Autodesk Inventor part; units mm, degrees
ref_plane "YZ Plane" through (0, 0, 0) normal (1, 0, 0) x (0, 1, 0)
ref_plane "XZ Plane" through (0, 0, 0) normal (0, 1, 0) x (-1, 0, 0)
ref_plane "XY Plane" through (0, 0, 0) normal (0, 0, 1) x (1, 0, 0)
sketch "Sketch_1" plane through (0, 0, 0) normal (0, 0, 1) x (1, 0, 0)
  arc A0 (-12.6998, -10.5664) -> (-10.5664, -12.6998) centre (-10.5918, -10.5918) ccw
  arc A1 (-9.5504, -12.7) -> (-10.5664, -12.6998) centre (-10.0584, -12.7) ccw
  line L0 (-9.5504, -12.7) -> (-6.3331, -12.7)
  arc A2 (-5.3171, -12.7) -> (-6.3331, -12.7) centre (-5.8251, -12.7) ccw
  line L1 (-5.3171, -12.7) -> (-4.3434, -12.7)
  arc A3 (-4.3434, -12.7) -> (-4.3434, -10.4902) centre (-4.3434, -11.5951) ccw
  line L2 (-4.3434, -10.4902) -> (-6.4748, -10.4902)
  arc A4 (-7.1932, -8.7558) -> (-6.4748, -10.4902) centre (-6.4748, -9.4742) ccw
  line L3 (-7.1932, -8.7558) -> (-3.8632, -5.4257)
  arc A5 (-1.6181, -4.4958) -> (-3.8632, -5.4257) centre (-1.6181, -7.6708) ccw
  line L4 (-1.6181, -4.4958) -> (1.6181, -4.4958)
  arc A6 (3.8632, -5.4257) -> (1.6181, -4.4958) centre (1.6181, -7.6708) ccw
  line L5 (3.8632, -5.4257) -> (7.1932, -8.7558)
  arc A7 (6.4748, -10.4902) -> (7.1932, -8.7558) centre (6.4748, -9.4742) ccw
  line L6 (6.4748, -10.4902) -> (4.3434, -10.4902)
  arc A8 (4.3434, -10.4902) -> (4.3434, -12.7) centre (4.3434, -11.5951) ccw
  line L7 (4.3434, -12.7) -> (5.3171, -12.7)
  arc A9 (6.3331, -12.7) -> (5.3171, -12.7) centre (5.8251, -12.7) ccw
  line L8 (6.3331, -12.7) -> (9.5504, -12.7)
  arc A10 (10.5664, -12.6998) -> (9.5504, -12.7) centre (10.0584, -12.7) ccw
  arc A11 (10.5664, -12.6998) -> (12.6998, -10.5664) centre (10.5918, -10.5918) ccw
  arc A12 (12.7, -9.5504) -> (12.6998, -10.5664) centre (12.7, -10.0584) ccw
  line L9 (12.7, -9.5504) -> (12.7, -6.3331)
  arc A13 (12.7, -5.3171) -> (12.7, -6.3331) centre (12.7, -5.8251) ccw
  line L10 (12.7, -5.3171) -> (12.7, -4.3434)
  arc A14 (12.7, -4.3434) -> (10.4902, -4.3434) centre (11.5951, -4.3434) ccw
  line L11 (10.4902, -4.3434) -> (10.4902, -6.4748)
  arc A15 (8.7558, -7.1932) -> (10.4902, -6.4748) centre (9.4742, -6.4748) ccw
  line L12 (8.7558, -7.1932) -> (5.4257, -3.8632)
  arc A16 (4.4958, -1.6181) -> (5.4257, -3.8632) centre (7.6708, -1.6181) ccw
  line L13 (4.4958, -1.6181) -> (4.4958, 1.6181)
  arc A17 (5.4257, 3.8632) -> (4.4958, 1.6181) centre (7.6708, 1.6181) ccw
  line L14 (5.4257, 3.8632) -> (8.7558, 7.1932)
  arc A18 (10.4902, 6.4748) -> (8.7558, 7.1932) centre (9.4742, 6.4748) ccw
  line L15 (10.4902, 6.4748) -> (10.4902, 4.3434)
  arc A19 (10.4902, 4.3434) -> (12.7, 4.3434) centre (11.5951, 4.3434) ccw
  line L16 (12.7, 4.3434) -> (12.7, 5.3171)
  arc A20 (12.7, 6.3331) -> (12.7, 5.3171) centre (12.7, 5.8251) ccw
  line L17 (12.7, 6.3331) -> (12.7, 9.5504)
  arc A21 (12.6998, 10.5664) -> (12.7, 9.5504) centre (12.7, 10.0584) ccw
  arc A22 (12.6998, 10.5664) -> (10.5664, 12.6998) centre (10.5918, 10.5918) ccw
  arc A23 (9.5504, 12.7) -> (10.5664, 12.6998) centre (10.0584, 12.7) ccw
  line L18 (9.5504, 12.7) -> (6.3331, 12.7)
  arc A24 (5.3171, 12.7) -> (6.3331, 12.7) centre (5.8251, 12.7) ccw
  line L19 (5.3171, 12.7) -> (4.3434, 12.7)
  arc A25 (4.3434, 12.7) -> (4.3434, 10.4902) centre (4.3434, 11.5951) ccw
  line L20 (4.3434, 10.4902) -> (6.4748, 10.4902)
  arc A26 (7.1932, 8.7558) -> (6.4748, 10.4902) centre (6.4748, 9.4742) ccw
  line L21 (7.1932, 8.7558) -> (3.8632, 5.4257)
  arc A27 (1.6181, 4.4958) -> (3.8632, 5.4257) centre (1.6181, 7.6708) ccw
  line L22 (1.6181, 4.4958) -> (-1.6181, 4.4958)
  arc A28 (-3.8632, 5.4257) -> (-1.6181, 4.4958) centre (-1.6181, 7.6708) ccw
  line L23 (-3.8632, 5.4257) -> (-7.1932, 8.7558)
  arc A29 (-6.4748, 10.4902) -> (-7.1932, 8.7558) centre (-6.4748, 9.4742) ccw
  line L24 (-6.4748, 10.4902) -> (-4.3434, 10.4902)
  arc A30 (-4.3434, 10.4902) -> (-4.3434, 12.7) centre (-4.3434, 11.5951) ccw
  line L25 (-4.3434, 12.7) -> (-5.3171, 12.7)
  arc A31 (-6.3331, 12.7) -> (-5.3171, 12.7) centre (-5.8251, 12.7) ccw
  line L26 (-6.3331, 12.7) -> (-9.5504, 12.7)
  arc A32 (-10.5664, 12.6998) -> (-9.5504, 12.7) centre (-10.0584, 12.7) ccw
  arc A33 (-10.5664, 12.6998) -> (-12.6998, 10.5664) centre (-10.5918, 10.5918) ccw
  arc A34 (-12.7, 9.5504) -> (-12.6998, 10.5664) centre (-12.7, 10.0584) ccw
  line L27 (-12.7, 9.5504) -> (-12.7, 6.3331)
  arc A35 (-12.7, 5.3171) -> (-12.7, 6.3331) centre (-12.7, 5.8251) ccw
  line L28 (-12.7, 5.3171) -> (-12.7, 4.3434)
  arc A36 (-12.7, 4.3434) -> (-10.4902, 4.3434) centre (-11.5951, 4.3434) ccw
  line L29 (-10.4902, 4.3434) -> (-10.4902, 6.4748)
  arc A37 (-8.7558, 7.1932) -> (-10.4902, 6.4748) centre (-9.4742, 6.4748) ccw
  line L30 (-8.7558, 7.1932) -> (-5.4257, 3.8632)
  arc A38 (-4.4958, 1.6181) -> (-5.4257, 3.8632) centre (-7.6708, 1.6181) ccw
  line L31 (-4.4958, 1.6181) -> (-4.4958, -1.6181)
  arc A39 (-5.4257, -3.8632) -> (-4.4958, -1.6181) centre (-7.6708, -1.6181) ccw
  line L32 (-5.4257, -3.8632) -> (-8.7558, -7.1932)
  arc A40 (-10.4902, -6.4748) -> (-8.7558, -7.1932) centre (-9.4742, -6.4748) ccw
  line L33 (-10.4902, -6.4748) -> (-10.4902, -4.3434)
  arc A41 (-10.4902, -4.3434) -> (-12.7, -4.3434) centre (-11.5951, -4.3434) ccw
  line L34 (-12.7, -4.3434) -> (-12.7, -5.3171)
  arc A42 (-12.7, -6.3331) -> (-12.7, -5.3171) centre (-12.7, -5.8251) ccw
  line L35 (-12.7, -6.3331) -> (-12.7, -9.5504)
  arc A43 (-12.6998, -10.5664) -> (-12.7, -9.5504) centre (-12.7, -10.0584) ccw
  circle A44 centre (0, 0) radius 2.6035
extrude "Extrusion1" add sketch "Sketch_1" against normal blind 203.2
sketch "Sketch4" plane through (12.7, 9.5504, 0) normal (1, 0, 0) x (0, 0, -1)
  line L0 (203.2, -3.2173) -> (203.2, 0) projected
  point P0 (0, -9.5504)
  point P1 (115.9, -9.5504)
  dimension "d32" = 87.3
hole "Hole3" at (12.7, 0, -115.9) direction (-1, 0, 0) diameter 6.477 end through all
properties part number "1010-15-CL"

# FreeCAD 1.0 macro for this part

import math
import FreeCAD as App
import Part
import Sketcher

V = App.Vector
Q = App.Units.Quantity

doc = App.newDocument("Part")
body = doc.addObject("PartDesign::Body", "Body")

# Sketch on XY plane
sketch1 = doc.addObject("Sketcher::SketchObject", "Sketch")
body.addObject(sketch1)
sketch1.AttachmentSupport = (doc.XY_Plane, [""])
sketch1.MapMode = "FlatFace"
sketch1.addGeometry(Part.ArcOfCircle(Part.Circle(V(-12.7, -10.0584, 0), V(0, 0, 1), 0.508), math.radians(-89.977443), math.radians(90)), False)
sketch1.addGeometry(Part.ArcOfCircle(Part.Circle(V(-10.5918, -10.5918, 0), V(0, 0, 1), 2.108153), math.radians(179.309657), math.radians(270.690343)), False)
sketch1.addGeometry(Part.ArcOfCircle(Part.Circle(V(-10.0584, -12.7, 0), V(0, 0, 1), 0.508), math.radians(0), math.radians(179.977443)), False)
sketch1.addGeometry(Part.LineSegment(V(-9.5504, -12.7, 0), V(-6.3331, -12.7, 0)), False)
sketch1.addGeometry(Part.ArcOfCircle(Part.Circle(V(-5.8251, -12.7, 0), V(0, 0, 1), 0.508), math.radians(0), math.radians(180)), False)
sketch1.addGeometry(Part.LineSegment(V(-5.3171, -12.7, 0), V(-4.3434, -12.7, 0)), False)
sketch1.addGeometry(Part.ArcOfCircle(Part.Circle(V(-4.3434, -11.5951, 0), V(0, 0, 1), 1.1049), math.radians(-90), math.radians(90)), False)
sketch1.addGeometry(Part.LineSegment(V(-4.3434, -10.4902, 0), V(-6.4748, -10.4902, 0)), False)
sketch1.addGeometry(Part.ArcOfCircle(Part.Circle(V(-6.4748, -9.4742, 0), V(0, 0, 1), 1.015971), math.radians(135), math.radians(270)), False)
sketch1.addGeometry(Part.LineSegment(V(-7.1932, -8.7558, 0), V(-3.8632, -5.4257, 0)), False)
sketch1.addGeometry(Part.ArcOfCircle(Part.Circle(V(-1.6181, -7.6708, 0), V(0, 0, 1), 3.175), math.radians(90), math.radians(135)), False)
sketch1.addGeometry(Part.LineSegment(V(-1.6181, -4.4958, 0), V(1.6181, -4.4958, 0)), False)
sketch1.addGeometry(Part.ArcOfCircle(Part.Circle(V(1.6181, -7.6708, 0), V(0, 0, 1), 3.175051), math.radians(45), math.radians(90)), False)
sketch1.addGeometry(Part.LineSegment(V(3.8632, -5.4257, 0), V(7.1932, -8.7558, 0)), False)
sketch1.addGeometry(Part.ArcOfCircle(Part.Circle(V(6.4748, -9.4742, 0), V(0, 0, 1), 1.016), math.radians(-90), math.radians(45)), False)
sketch1.addGeometry(Part.LineSegment(V(6.4748, -10.4902, 0), V(4.3434, -10.4902, 0)), False)
sketch1.addGeometry(Part.ArcOfCircle(Part.Circle(V(4.3434, -11.5951, 0), V(0, 0, 1), 1.1049), math.radians(90), math.radians(270)), False)
sketch1.addGeometry(Part.LineSegment(V(4.3434, -12.7, 0), V(5.3171, -12.7, 0)), False)
sketch1.addGeometry(Part.ArcOfCircle(Part.Circle(V(5.8251, -12.7, 0), V(0, 0, 1), 0.508), math.radians(0), math.radians(180)), False)
sketch1.addGeometry(Part.LineSegment(V(6.3331, -12.7, 0), V(9.5504, -12.7, 0)), False)
sketch1.addGeometry(Part.ArcOfCircle(Part.Circle(V(10.0584, -12.7, 0), V(0, 0, 1), 0.508), math.radians(0.022557), math.radians(180)), False)
sketch1.addGeometry(Part.ArcOfCircle(Part.Circle(V(10.5918, -10.5918, 0), V(0, 0, 1), 2.108153), math.radians(-90.690343), math.radians(0.690343)), False)
sketch1.addGeometry(Part.ArcOfCircle(Part.Circle(V(12.7, -10.0584, 0), V(0, 0, 1), 0.508), math.radians(90), math.radians(269.977443)), False)
sketch1.addGeometry(Part.LineSegment(V(12.7, -9.5504, 0), V(12.7, -6.3331, 0)), False)
sketch1.addGeometry(Part.ArcOfCircle(Part.Circle(V(12.7, -5.8251, 0), V(0, 0, 1), 0.508), math.radians(90), math.radians(270)), False)
sketch1.addGeometry(Part.LineSegment(V(12.7, -5.3171, 0), V(12.7, -4.3434, 0)), False)
sketch1.addGeometry(Part.ArcOfCircle(Part.Circle(V(11.5951, -4.3434, 0), V(0, 0, 1), 1.1049), math.radians(0), math.radians(180)), False)
sketch1.addGeometry(Part.LineSegment(V(10.4902, -4.3434, 0), V(10.4902, -6.4748, 0)), False)
sketch1.addGeometry(Part.ArcOfCircle(Part.Circle(V(9.4742, -6.4748, 0), V(0, 0, 1), 1.015971), math.radians(-135), math.radians(0)), False)
sketch1.addGeometry(Part.LineSegment(V(8.7558, -7.1932, 0), V(5.4257, -3.8632, 0)), False)
sketch1.addGeometry(Part.ArcOfCircle(Part.Circle(V(7.6708, -1.6181, 0), V(0, 0, 1), 3.175), math.radians(180), math.radians(225)), False)
sketch1.addGeometry(Part.LineSegment(V(4.4958, -1.6181, 0), V(4.4958, 1.6181, 0)), False)
sketch1.addGeometry(Part.ArcOfCircle(Part.Circle(V(7.6708, 1.6181, 0), V(0, 0, 1), 3.175051), math.radians(135), math.radians(180)), False)
sketch1.addGeometry(Part.LineSegment(V(5.4257, 3.8632, 0), V(8.7558, 7.1932, 0)), False)
sketch1.addGeometry(Part.ArcOfCircle(Part.Circle(V(9.4742, 6.4748, 0), V(0, 0, 1), 1.016), math.radians(0), math.radians(135)), False)
sketch1.addGeometry(Part.LineSegment(V(10.4902, 6.4748, 0), V(10.4902, 4.3434, 0)), False)
sketch1.addGeometry(Part.ArcOfCircle(Part.Circle(V(11.5951, 4.3434, 0), V(0, 0, 1), 1.1049), math.radians(180), math.radians(360)), False)
sketch1.addGeometry(Part.LineSegment(V(12.7, 4.3434, 0), V(12.7, 5.3171, 0)), False)
sketch1.addGeometry(Part.ArcOfCircle(Part.Circle(V(12.7, 5.8251, 0), V(0, 0, 1), 0.508), math.radians(90), math.radians(270)), False)
sketch1.addGeometry(Part.LineSegment(V(12.7, 6.3331, 0), V(12.7, 9.5504, 0)), False)
sketch1.addGeometry(Part.ArcOfCircle(Part.Circle(V(12.7, 10.0584, 0), V(0, 0, 1), 0.508), math.radians(90.022557), math.radians(270)), False)
sketch1.addGeometry(Part.ArcOfCircle(Part.Circle(V(10.5918, 10.5918, 0), V(0, 0, 1), 2.108153), math.radians(-0.690343), math.radians(90.690343)), False)
sketch1.addGeometry(Part.ArcOfCircle(Part.Circle(V(10.0584, 12.7, 0), V(0, 0, 1), 0.508), math.radians(180), math.radians(359.977443)), False)
sketch1.addGeometry(Part.LineSegment(V(9.5504, 12.7, 0), V(6.3331, 12.7, 0)), False)
sketch1.addGeometry(Part.ArcOfCircle(Part.Circle(V(5.8251, 12.7, 0), V(0, 0, 1), 0.508), math.radians(180), math.radians(360)), False)
sketch1.addGeometry(Part.LineSegment(V(5.3171, 12.7, 0), V(4.3434, 12.7, 0)), False)
sketch1.addGeometry(Part.ArcOfCircle(Part.Circle(V(4.3434, 11.5951, 0), V(0, 0, 1), 1.1049), math.radians(90), math.radians(270)), False)
sketch1.addGeometry(Part.LineSegment(V(4.3434, 10.4902, 0), V(6.4748, 10.4902, 0)), False)
sketch1.addGeometry(Part.ArcOfCircle(Part.Circle(V(6.4748, 9.4742, 0), V(0, 0, 1), 1.015971), math.radians(-45), math.radians(90)), False)
sketch1.addGeometry(Part.LineSegment(V(7.1932, 8.7558, 0), V(3.8632, 5.4257, 0)), False)
sketch1.addGeometry(Part.ArcOfCircle(Part.Circle(V(1.6181, 7.6708, 0), V(0, 0, 1), 3.175), math.radians(-90), math.radians(-45)), False)
sketch1.addGeometry(Part.LineSegment(V(1.6181, 4.4958, 0), V(-1.6181, 4.4958, 0)), False)
sketch1.addGeometry(Part.ArcOfCircle(Part.Circle(V(-1.6181, 7.6708, 0), V(0, 0, 1), 3.175051), math.radians(-135), math.radians(-90)), False)
sketch1.addGeometry(Part.LineSegment(V(-3.8632, 5.4257, 0), V(-7.1932, 8.7558, 0)), False)
sketch1.addGeometry(Part.ArcOfCircle(Part.Circle(V(-6.4748, 9.4742, 0), V(0, 0, 1), 1.016), math.radians(90), math.radians(225)), False)
sketch1.addGeometry(Part.LineSegment(V(-6.4748, 10.4902, 0), V(-4.3434, 10.4902, 0)), False)
sketch1.addGeometry(Part.ArcOfCircle(Part.Circle(V(-4.3434, 11.5951, 0), V(0, 0, 1), 1.1049), math.radians(-90), math.radians(90)), False)
sketch1.addGeometry(Part.LineSegment(V(-4.3434, 12.7, 0), V(-5.3171, 12.7, 0)), False)
sketch1.addGeometry(Part.ArcOfCircle(Part.Circle(V(-5.8251, 12.7, 0), V(0, 0, 1), 0.508), math.radians(180), math.radians(360)), False)
sketch1.addGeometry(Part.LineSegment(V(-6.3331, 12.7, 0), V(-9.5504, 12.7, 0)), False)
sketch1.addGeometry(Part.ArcOfCircle(Part.Circle(V(-10.0584, 12.7, 0), V(0, 0, 1), 0.508), math.radians(-179.977443), math.radians(0)), False)
sketch1.addGeometry(Part.ArcOfCircle(Part.Circle(V(-10.5918, 10.5918, 0), V(0, 0, 1), 2.108153), math.radians(89.309657), math.radians(180.690343)), False)
sketch1.addGeometry(Part.ArcOfCircle(Part.Circle(V(-12.7, 10.0584, 0), V(0, 0, 1), 0.508), math.radians(-90), math.radians(89.977443)), False)
sketch1.addGeometry(Part.LineSegment(V(-12.7, 9.5504, 0), V(-12.7, 6.3331, 0)), False)
sketch1.addGeometry(Part.ArcOfCircle(Part.Circle(V(-12.7, 5.8251, 0), V(0, 0, 1), 0.508), math.radians(-90), math.radians(90)), False)
sketch1.addGeometry(Part.LineSegment(V(-12.7, 5.3171, 0), V(-12.7, 4.3434, 0)), False)
sketch1.addGeometry(Part.ArcOfCircle(Part.Circle(V(-11.5951, 4.3434, 0), V(0, 0, 1), 1.1049), math.radians(180), math.radians(360)), False)
sketch1.addGeometry(Part.LineSegment(V(-10.4902, 4.3434, 0), V(-10.4902, 6.4748, 0)), False)
sketch1.addGeometry(Part.ArcOfCircle(Part.Circle(V(-9.4742, 6.4748, 0), V(0, 0, 1), 1.015971), math.radians(45), math.radians(180)), False)
sketch1.addGeometry(Part.LineSegment(V(-8.7558, 7.1932, 0), V(-5.4257, 3.8632, 0)), False)
sketch1.addGeometry(Part.ArcOfCircle(Part.Circle(V(-7.6708, 1.6181, 0), V(0, 0, 1), 3.175), math.radians(0), math.radians(45)), False)
sketch1.addGeometry(Part.LineSegment(V(-4.4958, 1.6181, 0), V(-4.4958, -1.6181, 0)), False)
sketch1.addGeometry(Part.ArcOfCircle(Part.Circle(V(-7.6708, -1.6181, 0), V(0, 0, 1), 3.175051), math.radians(-45), math.radians(0)), False)
sketch1.addGeometry(Part.LineSegment(V(-5.4257, -3.8632, 0), V(-8.7558, -7.1932, 0)), False)
sketch1.addGeometry(Part.ArcOfCircle(Part.Circle(V(-9.4742, -6.4748, 0), V(0, 0, 1), 1.016), math.radians(180), math.radians(315)), False)
sketch1.addGeometry(Part.LineSegment(V(-10.4902, -6.4748, 0), V(-10.4902, -4.3434, 0)), False)
sketch1.addGeometry(Part.ArcOfCircle(Part.Circle(V(-11.5951, -4.3434, 0), V(0, 0, 1), 1.1049), math.radians(0), math.radians(180)), False)
sketch1.addGeometry(Part.LineSegment(V(-12.7, -4.3434, 0), V(-12.7, -5.3171, 0)), False)
sketch1.addGeometry(Part.ArcOfCircle(Part.Circle(V(-12.7, -5.8251, 0), V(0, 0, 1), 0.508), math.radians(-90), math.radians(90)), False)
sketch1.addGeometry(Part.LineSegment(V(-12.7, -6.3331, 0), V(-12.7, -9.5504, 0)), False)
sketch1.addGeometry(Part.Circle(V(0, 0, 0), V(0, 0, 1), 2.6035), False)
sketch1.addConstraint(Sketcher.Constraint("Coincident", 0, 1, 1, 1))
sketch1.addConstraint(Sketcher.Constraint("Coincident", 1, 2, 2, 2))
sketch1.addConstraint(Sketcher.Constraint("Coincident", 2, 1, 3, 1))
sketch1.addConstraint(Sketcher.Constraint("Coincident", 3, 2, 4, 2))
sketch1.addConstraint(Sketcher.Constraint("Coincident", 4, 1, 5, 1))
sketch1.addConstraint(Sketcher.Constraint("Tangent", 5, 2, 6, 1))
sketch1.addConstraint(Sketcher.Constraint("Tangent", 6, 2, 7, 1))
sketch1.addConstraint(Sketcher.Constraint("Tangent", 7, 2, 8, 2))
sketch1.addConstraint(Sketcher.Constraint("Tangent", 8, 1, 9, 1))
sketch1.addConstraint(Sketcher.Constraint("Tangent", 9, 2, 10, 2))
sketch1.addConstraint(Sketcher.Constraint("Tangent", 10, 1, 11, 1))
sketch1.addConstraint(Sketcher.Constraint("Tangent", 11, 2, 12, 2))
sketch1.addConstraint(Sketcher.Constraint("Tangent", 12, 1, 13, 1))
sketch1.addConstraint(Sketcher.Constraint("Tangent", 13, 2, 14, 2))
sketch1.addConstraint(Sketcher.Constraint("Tangent", 14, 1, 15, 1))
sketch1.addConstraint(Sketcher.Constraint("Tangent", 15, 2, 16, 1))
sketch1.addConstraint(Sketcher.Constraint("Tangent", 16, 2, 17, 1))
sketch1.addConstraint(Sketcher.Constraint("Coincident", 17, 2, 18, 2))
sketch1.addConstraint(Sketcher.Constraint("Coincident", 18, 1, 19, 1))
sketch1.addConstraint(Sketcher.Constraint("Coincident", 19, 2, 20, 2))
sketch1.addConstraint(Sketcher.Constraint("Coincident", 20, 1, 21, 1))
sketch1.addConstraint(Sketcher.Constraint("Coincident", 21, 2, 22, 2))
sketch1.addConstraint(Sketcher.Constraint("Coincident", 22, 1, 23, 1))
sketch1.addConstraint(Sketcher.Constraint("Coincident", 23, 2, 24, 2))
sketch1.addConstraint(Sketcher.Constraint("Coincident", 24, 1, 25, 1))
sketch1.addConstraint(Sketcher.Constraint("Tangent", 25, 2, 26, 1))
sketch1.addConstraint(Sketcher.Constraint("Tangent", 26, 2, 27, 1))
sketch1.addConstraint(Sketcher.Constraint("Tangent", 27, 2, 28, 2))
sketch1.addConstraint(Sketcher.Constraint("Tangent", 28, 1, 29, 1))
sketch1.addConstraint(Sketcher.Constraint("Tangent", 29, 2, 30, 2))
sketch1.addConstraint(Sketcher.Constraint("Tangent", 30, 1, 31, 1))
sketch1.addConstraint(Sketcher.Constraint("Tangent", 31, 2, 32, 2))
sketch1.addConstraint(Sketcher.Constraint("Tangent", 32, 1, 33, 1))
sketch1.addConstraint(Sketcher.Constraint("Tangent", 33, 2, 34, 2))
sketch1.addConstraint(Sketcher.Constraint("Tangent", 34, 1, 35, 1))
sketch1.addConstraint(Sketcher.Constraint("Tangent", 35, 2, 36, 1))
sketch1.addConstraint(Sketcher.Constraint("Tangent", 36, 2, 37, 1))
sketch1.addConstraint(Sketcher.Constraint("Coincident", 37, 2, 38, 2))
sketch1.addConstraint(Sketcher.Constraint("Coincident", 38, 1, 39, 1))
sketch1.addConstraint(Sketcher.Constraint("Coincident", 39, 2, 40, 2))
sketch1.addConstraint(Sketcher.Constraint("Coincident", 40, 1, 41, 1))
sketch1.addConstraint(Sketcher.Constraint("Coincident", 41, 2, 42, 2))
sketch1.addConstraint(Sketcher.Constraint("Coincident", 42, 1, 43, 1))
sketch1.addConstraint(Sketcher.Constraint("Coincident", 43, 2, 44, 2))
sketch1.addConstraint(Sketcher.Constraint("Coincident", 44, 1, 45, 1))
sketch1.addConstraint(Sketcher.Constraint("Tangent", 45, 2, 46, 1))
sketch1.addConstraint(Sketcher.Constraint("Tangent", 46, 2, 47, 1))
sketch1.addConstraint(Sketcher.Constraint("Tangent", 47, 2, 48, 2))
sketch1.addConstraint(Sketcher.Constraint("Tangent", 48, 1, 49, 1))
sketch1.addConstraint(Sketcher.Constraint("Tangent", 49, 2, 50, 2))
sketch1.addConstraint(Sketcher.Constraint("Tangent", 50, 1, 51, 1))
sketch1.addConstraint(Sketcher.Constraint("Tangent", 51, 2, 52, 2))
sketch1.addConstraint(Sketcher.Constraint("Tangent", 52, 1, 53, 1))
sketch1.addConstraint(Sketcher.Constraint("Tangent", 53, 2, 54, 2))
sketch1.addConstraint(Sketcher.Constraint("Tangent", 54, 1, 55, 1))
sketch1.addConstraint(Sketcher.Constraint("Tangent", 55, 2, 56, 1))
sketch1.addConstraint(Sketcher.Constraint("Tangent", 56, 2, 57, 1))
sketch1.addConstraint(Sketcher.Constraint("Coincident", 57, 2, 58, 2))
sketch1.addConstraint(Sketcher.Constraint("Coincident", 58, 1, 59, 1))
sketch1.addConstraint(Sketcher.Constraint("Coincident", 59, 2, 60, 2))
sketch1.addConstraint(Sketcher.Constraint("Coincident", 60, 1, 61, 1))
sketch1.addConstraint(Sketcher.Constraint("Coincident", 61, 2, 62, 2))
sketch1.addConstraint(Sketcher.Constraint("Coincident", 62, 1, 63, 1))
sketch1.addConstraint(Sketcher.Constraint("Coincident", 63, 2, 64, 2))
sketch1.addConstraint(Sketcher.Constraint("Coincident", 64, 1, 65, 1))
sketch1.addConstraint(Sketcher.Constraint("Tangent", 65, 2, 66, 1))
sketch1.addConstraint(Sketcher.Constraint("Tangent", 66, 2, 67, 1))
sketch1.addConstraint(Sketcher.Constraint("Tangent", 67, 2, 68, 2))
sketch1.addConstraint(Sketcher.Constraint("Tangent", 68, 1, 69, 1))
sketch1.addConstraint(Sketcher.Constraint("Tangent", 69, 2, 70, 2))
sketch1.addConstraint(Sketcher.Constraint("Tangent", 70, 1, 71, 1))
sketch1.addConstraint(Sketcher.Constraint("Tangent", 71, 2, 72, 2))
sketch1.addConstraint(Sketcher.Constraint("Tangent", 72, 1, 73, 1))
sketch1.addConstraint(Sketcher.Constraint("Tangent", 73, 2, 74, 2))
sketch1.addConstraint(Sketcher.Constraint("Tangent", 74, 1, 75, 1))
sketch1.addConstraint(Sketcher.Constraint("Tangent", 75, 2, 76, 1))
sketch1.addConstraint(Sketcher.Constraint("Tangent", 76, 2, 77, 1))
sketch1.addConstraint(Sketcher.Constraint("Coincident", 77, 2, 78, 2))
sketch1.addConstraint(Sketcher.Constraint("Coincident", 78, 1, 79, 1))
sketch1.addConstraint(Sketcher.Constraint("Coincident", 79, 2, 0, 2))
sketch1.addConstraint(Sketcher.Constraint("Horizontal", 3))
sketch1.addConstraint(Sketcher.Constraint("Horizontal", 5))
sketch1.addConstraint(Sketcher.Constraint("Horizontal", 7))
sketch1.addConstraint(Sketcher.Constraint("Horizontal", 11))
sketch1.addConstraint(Sketcher.Constraint("Horizontal", 15))
sketch1.addConstraint(Sketcher.Constraint("Horizontal", 17))
sketch1.addConstraint(Sketcher.Constraint("Horizontal", 19))
sketch1.addConstraint(Sketcher.Constraint("Vertical", 23))
sketch1.addConstraint(Sketcher.Constraint("Vertical", 25))
sketch1.addConstraint(Sketcher.Constraint("Vertical", 27))
sketch1.addConstraint(Sketcher.Constraint("Vertical", 31))
sketch1.addConstraint(Sketcher.Constraint("Vertical", 35))
sketch1.addConstraint(Sketcher.Constraint("Vertical", 37))
sketch1.addConstraint(Sketcher.Constraint("Vertical", 39))
sketch1.addConstraint(Sketcher.Constraint("Horizontal", 43))
sketch1.addConstraint(Sketcher.Constraint("Horizontal", 45))
sketch1.addConstraint(Sketcher.Constraint("Horizontal", 47))
sketch1.addConstraint(Sketcher.Constraint("Horizontal", 51))
sketch1.addConstraint(Sketcher.Constraint("Horizontal", 55))
sketch1.addConstraint(Sketcher.Constraint("Horizontal", 57))
sketch1.addConstraint(Sketcher.Constraint("Horizontal", 59))
sketch1.addConstraint(Sketcher.Constraint("Vertical", 63))
sketch1.addConstraint(Sketcher.Constraint("Vertical", 65))
sketch1.addConstraint(Sketcher.Constraint("Vertical", 67))
sketch1.addConstraint(Sketcher.Constraint("Vertical", 71))
sketch1.addConstraint(Sketcher.Constraint("Vertical", 75))
sketch1.addConstraint(Sketcher.Constraint("Vertical", 77))
sketch1.addConstraint(Sketcher.Constraint("Vertical", 79))
sketch1.addConstraint(Sketcher.Constraint("Coincident", 80, 3, -1, 1))
sketch1.addConstraint(Sketcher.Constraint("Equal", 0, 2))
sketch1.addConstraint(Sketcher.Constraint("Equal", 2, 4))
sketch1.addConstraint(Sketcher.Constraint("Equal", 10, 12))
sketch1.addConstraint(Sketcher.Constraint("Equal", 8, 14))
sketch1.addConstraint(Sketcher.Constraint("Equal", 6, 16))
sketch1.addConstraint(Sketcher.Constraint("Equal", 4, 18))
sketch1.addConstraint(Sketcher.Constraint("Equal", 18, 20))
sketch1.addConstraint(Sketcher.Constraint("Equal", 1, 21))
sketch1.addConstraint(Sketcher.Constraint("Equal", 20, 22))
sketch1.addConstraint(Sketcher.Constraint("Equal", 22, 24))
sketch1.addConstraint(Sketcher.Constraint("Equal", 16, 26))
sketch1.addConstraint(Sketcher.Constraint("Equal", 14, 28))
sketch1.addConstraint(Sketcher.Constraint("Equal", 12, 30))
sketch1.addConstraint(Sketcher.Constraint("Equal", 30, 32))
sketch1.addConstraint(Sketcher.Constraint("Equal", 28, 34))
sketch1.addConstraint(Sketcher.Constraint("Equal", 26, 36))
sketch1.addConstraint(Sketcher.Constraint("Equal", 24, 38))
sketch1.addConstraint(Sketcher.Constraint("Equal", 38, 40))
sketch1.addConstraint(Sketcher.Constraint("Equal", 21, 41))
sketch1.addConstraint(Sketcher.Constraint("Equal", 40, 42))
sketch1.addConstraint(Sketcher.Constraint("Equal", 42, 44))
sketch1.addConstraint(Sketcher.Constraint("Equal", 36, 46))
sketch1.addConstraint(Sketcher.Constraint("Equal", 34, 48))
sketch1.addConstraint(Sketcher.Constraint("Equal", 32, 50))
sketch1.addConstraint(Sketcher.Constraint("Equal", 50, 52))
sketch1.addConstraint(Sketcher.Constraint("Equal", 48, 54))
sketch1.addConstraint(Sketcher.Constraint("Equal", 46, 56))
sketch1.addConstraint(Sketcher.Constraint("Equal", 44, 58))
sketch1.addConstraint(Sketcher.Constraint("Equal", 58, 60))
sketch1.addConstraint(Sketcher.Constraint("Equal", 41, 61))
sketch1.addConstraint(Sketcher.Constraint("Equal", 60, 62))
sketch1.addConstraint(Sketcher.Constraint("Equal", 62, 64))
sketch1.addConstraint(Sketcher.Constraint("Equal", 56, 66))
sketch1.addConstraint(Sketcher.Constraint("Equal", 54, 68))
sketch1.addConstraint(Sketcher.Constraint("Equal", 52, 70))
sketch1.addConstraint(Sketcher.Constraint("Equal", 70, 72))
sketch1.addConstraint(Sketcher.Constraint("Equal", 68, 74))
sketch1.addConstraint(Sketcher.Constraint("Equal", 66, 76))
sketch1.addConstraint(Sketcher.Constraint("Equal", 64, 78))
sketch1.addConstraint(Sketcher.Constraint("Symmetric", 0, 3, 40, 3, -1, 1))
sketch1.addConstraint(Sketcher.Constraint("Symmetric", 1, 3, 41, 3, -1, 1))
sketch1.addConstraint(Sketcher.Constraint("Symmetric", 2, 3, 42, 3, -1, 1))
sketch1.addConstraint(Sketcher.Constraint("Symmetric", 4, 3, 44, 3, -1, 1))
sketch1.addConstraint(Sketcher.Constraint("Symmetric", 6, 3, 46, 3, -1, 1))
sketch1.addConstraint(Sketcher.Constraint("Symmetric", 10, 3, 50, 3, -1, 1))
sketch1.addConstraint(Sketcher.Constraint("Symmetric", 14, 3, 54, 3, -1, 1))
sketch1.addConstraint(Sketcher.Constraint("Symmetric", 18, 3, 58, 3, -1, 1))
sketch1.addConstraint(Sketcher.Constraint("Symmetric", 20, 3, 60, 3, -1, 1))
sketch1.addConstraint(Sketcher.Constraint("Symmetric", 21, 3, 61, 3, -1, 1))
sketch1.addConstraint(Sketcher.Constraint("Symmetric", 22, 3, 62, 3, -1, 1))
sketch1.addConstraint(Sketcher.Constraint("Symmetric", 24, 3, 64, 3, -1, 1))
sketch1.addConstraint(Sketcher.Constraint("Symmetric", 26, 3, 66, 3, -1, 1))
sketch1.addConstraint(Sketcher.Constraint("Symmetric", 30, 3, 70, 3, -1, 1))
sketch1.addConstraint(Sketcher.Constraint("Symmetric", 34, 3, 74, 3, -1, 1))
sketch1.addConstraint(Sketcher.Constraint("Symmetric", 38, 3, 78, 3, -1, 1))
sketch1.addConstraint(Sketcher.Constraint("Symmetric", 8, 3, 14, 3, -2))
sketch1.addConstraint(Sketcher.Constraint("Symmetric", 4, 3, 18, 3, -2))
sketch1.addConstraint(Sketcher.Constraint("Symmetric", 2, 3, 20, 3, -2))
sketch1.addConstraint(Sketcher.Constraint("Symmetric", 1, 3, 21, 3, -2))
sketch1.addConstraint(Sketcher.Constraint("Symmetric", 0, 3, 22, 3, -2))
sketch1.addConstraint(Sketcher.Constraint("Symmetric", 38, 3, 64, 3, -2))
sketch1.addConstraint(Sketcher.Constraint("Symmetric", 36, 3, 66, 3, -2))
sketch1.addConstraint(Sketcher.Constraint("Symmetric", 49, 2, 52, 1, -2))
sketch1.addConstraint(Sketcher.Constraint("Symmetric", 33, 2, 68, 1, -2))
sketch1.addConstraint(Sketcher.Constraint("Symmetric", 29, 2, 72, 1, -2))
sketch1.addConstraint(Sketcher.Constraint("Perpendicular", 9, 13))
sketch1.addConstraint(Sketcher.Constraint("Parallel", 13, 29))
sketch1.addConstraint(Sketcher.Constraint("Perpendicular", 29, 33))
sketch1.addConstraint(Sketcher.Constraint("Horizontal", 2, 3, 4, 3))
sketch1.addConstraint(Sketcher.Constraint("Horizontal", 26, 3, 76, 3))
sketch1.addConstraint(Sketcher.Constraint("Horizontal", 20, 3, 1, 2))
sketch1.addConstraint(Sketcher.Constraint("Horizontal", 1, 2, 2, 1))
sketch1.addConstraint(Sketcher.Constraint("Horizontal", 3, 2, 4, 1))
sketch1.addConstraint(Sketcher.Constraint("Horizontal", 17, 2, 18, 1))
sketch1.addConstraint(Sketcher.Constraint("Horizontal", 41, 2, 42, 1))
sketch1.addConstraint(Sketcher.Constraint("Horizontal", 57, 2, 58, 1))
sketch1.addConstraint(Sketcher.Constraint("Vertical", 22, 3, 24, 3))
sketch1.addConstraint(Sketcher.Constraint("Vertical", 16, 3, 46, 3))
sketch1.addConstraint(Sketcher.Constraint("Vertical", 6, 3, 56, 3))
sketch1.addConstraint(Sketcher.Constraint("Vertical", 78, 3, 0, 1))
sketch1.addConstraint(Sketcher.Constraint("Vertical", 21, 2, 22, 1))
sketch1.addConstraint(Sketcher.Constraint("Vertical", 23, 2, 24, 1))
sketch1.addConstraint(Sketcher.Constraint("Vertical", 37, 2, 38, 1))
sketch1.addConstraint(Sketcher.Constraint("Vertical", 61, 2, 62, 1))
sketch1.addConstraint(Sketcher.Constraint("Vertical", 77, 2, 78, 1))
sketch1.addConstraint(Sketcher.Constraint("Equal", 59, 23))
sketch1.addConstraint(Sketcher.Constraint("Equal", 57, 25))
sketch1.addConstraint(Sketcher.Constraint("Equal", 55, 27))
sketch1.addConstraint(Sketcher.Constraint("Equal", 51, 31))
sketch1.addConstraint(Sketcher.Constraint("Equal", 13, 29))
sketch1.addConstraint(Sketcher.Constraint("Radius", 0, Q("0.02 in")))
sketch1.addConstraint(Sketcher.Constraint("Radius", 8, Q("0.04 in")))
sketch1.addConstraint(Sketcher.Constraint("Diameter", 80, Q("0.205 in")))
sketch1.addConstraint(Sketcher.Constraint("Radius", 1, Q("0.083 in")))
sketch1.addConstraint(Sketcher.Constraint("Radius", 10, Q("0.125 in")))
sketch1.addConstraint(Sketcher.Constraint("DistanceX", 0, 3, -1, 1, Q("0.5 in")))
sketch1.addConstraint(Sketcher.Constraint("DistanceY", 2, 3, -1, 1, Q("0.5 in")))
sketch1.addConstraint(Sketcher.Constraint("Radius", 6, Q("0.0435 in")))
sketch1.addConstraint(Sketcher.Constraint("DistanceX", 11, 1, 11, 2, Q("0.1274 in")))
sketch1.addConstraint(Sketcher.Constraint("DistanceY", 0, 3, -1, 1, Q("0.396 in")))
sketch1.addConstraint(Sketcher.Constraint("DistanceX", 6, 3, -1, 1, Q("0.171 in")))
sketch1.addConstraint(Sketcher.Constraint("DistanceY", 10, 3, -1, 1, Q("0.302 in")))
sketch1.addConstraint(Sketcher.Constraint("DistanceX", 3, 1, 3, 2, Q("3.2173 mm")))
pad1 = doc.addObject("PartDesign::Pad", "Pad")
body.addObject(pad1)
pad1.Profile = sketch1
pad1.Length = Q("8 in")
pad1.Reversed = True

# Sketch on YZ plane
sketch2 = doc.addObject("Sketcher::SketchObject", "Sketch001")
body.addObject(sketch2)
sketch2.AttachmentSupport = (doc.YZ_Plane, [""])
sketch2.MapMode = "FlatFace"
sketch2.AttachmentOffset = App.Placement(V(0, 0, 0.5 * 25.4), App.Rotation())
sketch2.addGeometry(Part.Circle(V(0, -115.9, 0), V(0, 0, 1), 3.2385), False)
sketch2.addConstraint(Sketcher.Constraint("PointOnObject", 0, 3, -2))
sketch2.addConstraint(Sketcher.Constraint("Diameter", 0, Q("0.255 in")))
sketch2.addConstraint(Sketcher.Constraint("DistanceY", 0, 3, -1, 1, Q("4.563 in")))
doc.recompute()
hole = doc.addObject("PartDesign::Hole", "Hole")
body.addObject(hole)
hole.Profile = sketch2
hole.ThreadType = "None"
hole.Diameter = Q("0.255 in")
hole.DepthType = "ThroughAll"

doc.recompute()
